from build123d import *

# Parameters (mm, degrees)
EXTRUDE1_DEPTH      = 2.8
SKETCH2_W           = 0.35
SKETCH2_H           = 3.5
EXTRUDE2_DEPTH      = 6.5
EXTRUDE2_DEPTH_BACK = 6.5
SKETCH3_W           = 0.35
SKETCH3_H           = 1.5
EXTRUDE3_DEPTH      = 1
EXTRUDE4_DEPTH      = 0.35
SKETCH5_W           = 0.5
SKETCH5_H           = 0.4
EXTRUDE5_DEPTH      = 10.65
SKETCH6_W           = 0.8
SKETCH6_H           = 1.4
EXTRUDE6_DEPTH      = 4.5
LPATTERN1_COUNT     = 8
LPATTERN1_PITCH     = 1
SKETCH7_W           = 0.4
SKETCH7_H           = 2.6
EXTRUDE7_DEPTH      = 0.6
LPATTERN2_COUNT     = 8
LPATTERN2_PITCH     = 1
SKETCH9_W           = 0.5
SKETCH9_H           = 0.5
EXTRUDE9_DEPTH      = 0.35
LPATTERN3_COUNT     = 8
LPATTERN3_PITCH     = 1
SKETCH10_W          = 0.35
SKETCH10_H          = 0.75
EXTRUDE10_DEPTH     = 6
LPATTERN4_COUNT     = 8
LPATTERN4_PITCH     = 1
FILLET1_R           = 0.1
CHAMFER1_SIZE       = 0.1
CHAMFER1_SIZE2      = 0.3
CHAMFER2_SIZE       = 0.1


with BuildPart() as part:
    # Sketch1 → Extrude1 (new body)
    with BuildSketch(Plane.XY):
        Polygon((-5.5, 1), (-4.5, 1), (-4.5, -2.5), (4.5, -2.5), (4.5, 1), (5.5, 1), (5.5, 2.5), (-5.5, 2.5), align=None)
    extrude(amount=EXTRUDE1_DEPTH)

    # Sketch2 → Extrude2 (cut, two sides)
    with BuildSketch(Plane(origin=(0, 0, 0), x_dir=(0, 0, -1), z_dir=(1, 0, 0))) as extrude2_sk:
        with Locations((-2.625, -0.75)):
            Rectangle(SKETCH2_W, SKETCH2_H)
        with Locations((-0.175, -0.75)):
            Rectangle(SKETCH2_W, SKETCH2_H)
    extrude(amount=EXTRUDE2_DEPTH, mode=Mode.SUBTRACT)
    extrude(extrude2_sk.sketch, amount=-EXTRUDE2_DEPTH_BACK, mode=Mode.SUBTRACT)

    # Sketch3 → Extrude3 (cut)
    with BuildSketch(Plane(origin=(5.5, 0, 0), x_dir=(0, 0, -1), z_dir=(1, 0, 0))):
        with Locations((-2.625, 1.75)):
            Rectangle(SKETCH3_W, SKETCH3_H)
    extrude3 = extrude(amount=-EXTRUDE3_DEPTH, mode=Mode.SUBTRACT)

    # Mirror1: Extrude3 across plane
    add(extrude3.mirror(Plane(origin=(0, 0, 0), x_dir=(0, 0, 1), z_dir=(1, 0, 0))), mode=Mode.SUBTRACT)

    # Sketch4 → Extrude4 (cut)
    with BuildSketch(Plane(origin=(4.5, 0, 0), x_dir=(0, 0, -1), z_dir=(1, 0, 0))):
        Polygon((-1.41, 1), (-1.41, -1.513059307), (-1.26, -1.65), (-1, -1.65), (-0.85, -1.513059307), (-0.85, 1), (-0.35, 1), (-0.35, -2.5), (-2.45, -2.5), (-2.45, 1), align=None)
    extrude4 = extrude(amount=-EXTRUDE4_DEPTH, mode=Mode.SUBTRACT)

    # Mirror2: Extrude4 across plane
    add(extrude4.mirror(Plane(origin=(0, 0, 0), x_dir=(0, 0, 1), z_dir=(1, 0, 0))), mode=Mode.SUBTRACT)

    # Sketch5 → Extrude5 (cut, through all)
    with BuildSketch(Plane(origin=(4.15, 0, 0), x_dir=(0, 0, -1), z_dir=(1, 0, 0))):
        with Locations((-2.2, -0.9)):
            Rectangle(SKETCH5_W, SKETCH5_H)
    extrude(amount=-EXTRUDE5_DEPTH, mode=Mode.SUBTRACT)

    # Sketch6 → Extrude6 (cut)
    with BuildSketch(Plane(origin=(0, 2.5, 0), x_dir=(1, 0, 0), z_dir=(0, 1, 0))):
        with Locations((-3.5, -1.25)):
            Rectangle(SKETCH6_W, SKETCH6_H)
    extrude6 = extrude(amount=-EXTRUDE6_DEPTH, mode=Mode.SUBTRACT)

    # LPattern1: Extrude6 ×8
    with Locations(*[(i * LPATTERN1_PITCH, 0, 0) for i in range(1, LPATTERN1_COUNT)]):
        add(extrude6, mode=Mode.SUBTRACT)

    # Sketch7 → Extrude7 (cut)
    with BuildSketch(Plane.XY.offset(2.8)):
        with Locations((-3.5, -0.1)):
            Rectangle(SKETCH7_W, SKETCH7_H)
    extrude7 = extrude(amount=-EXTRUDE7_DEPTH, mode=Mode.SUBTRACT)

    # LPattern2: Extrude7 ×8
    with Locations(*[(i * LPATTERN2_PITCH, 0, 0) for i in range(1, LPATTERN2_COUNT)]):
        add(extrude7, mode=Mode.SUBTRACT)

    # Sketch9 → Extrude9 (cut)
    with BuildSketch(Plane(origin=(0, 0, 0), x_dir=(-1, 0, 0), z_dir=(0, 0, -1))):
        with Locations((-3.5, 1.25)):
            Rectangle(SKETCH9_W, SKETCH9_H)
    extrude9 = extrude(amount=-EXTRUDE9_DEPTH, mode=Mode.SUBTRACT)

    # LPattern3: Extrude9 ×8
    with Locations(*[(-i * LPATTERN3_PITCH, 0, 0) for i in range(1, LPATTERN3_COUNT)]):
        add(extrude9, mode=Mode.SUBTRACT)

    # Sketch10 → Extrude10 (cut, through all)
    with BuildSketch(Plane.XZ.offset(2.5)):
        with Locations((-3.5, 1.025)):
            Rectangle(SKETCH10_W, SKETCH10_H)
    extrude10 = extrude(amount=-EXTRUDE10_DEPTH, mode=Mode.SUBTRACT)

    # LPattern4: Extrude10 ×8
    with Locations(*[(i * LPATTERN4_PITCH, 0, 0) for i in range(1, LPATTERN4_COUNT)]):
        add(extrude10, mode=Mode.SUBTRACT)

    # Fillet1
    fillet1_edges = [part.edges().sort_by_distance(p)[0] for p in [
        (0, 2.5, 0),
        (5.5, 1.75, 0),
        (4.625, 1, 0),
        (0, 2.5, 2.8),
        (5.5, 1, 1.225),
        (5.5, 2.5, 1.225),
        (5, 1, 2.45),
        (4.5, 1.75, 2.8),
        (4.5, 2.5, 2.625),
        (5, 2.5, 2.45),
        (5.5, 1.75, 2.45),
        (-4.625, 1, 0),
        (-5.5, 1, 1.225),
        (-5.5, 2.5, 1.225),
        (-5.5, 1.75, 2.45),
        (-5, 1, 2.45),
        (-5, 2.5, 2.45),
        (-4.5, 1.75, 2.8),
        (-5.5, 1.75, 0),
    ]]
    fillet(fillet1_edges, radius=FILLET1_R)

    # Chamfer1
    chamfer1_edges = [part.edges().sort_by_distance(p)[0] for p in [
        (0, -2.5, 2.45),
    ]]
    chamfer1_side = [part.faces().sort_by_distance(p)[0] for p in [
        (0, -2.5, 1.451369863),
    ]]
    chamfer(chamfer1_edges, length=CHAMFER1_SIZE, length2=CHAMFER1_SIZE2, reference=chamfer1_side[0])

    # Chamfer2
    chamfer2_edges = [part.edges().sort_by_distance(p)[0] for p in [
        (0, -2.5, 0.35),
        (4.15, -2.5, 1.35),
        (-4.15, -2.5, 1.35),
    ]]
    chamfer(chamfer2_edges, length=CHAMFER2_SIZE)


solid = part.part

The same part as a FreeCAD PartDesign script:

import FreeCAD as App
import Part
import Sketcher


def edges_at(feature, points):
    """Names of the edges that pass closest to the given points."""
    edges = feature.Shape.Edges
    near = lambda p: min(range(len(edges)), key=lambda i: edges[i].distToShape(Part.Vertex(*p))[0])
    return sorted({f"Edge{near(p) + 1}" for p in points})


def add_polygon(sketch, points):
    """Adds a closed chain of lines whose ends are joined by coincident constraints."""
    first, n = sketch.GeometryCount, len(points)
    for a, b in zip(points, points[1:] + points[:1]):
        sketch.addGeometry(Part.LineSegment(App.Vector(*a, 0), App.Vector(*b, 0)), False)
    for i in range(n):
        sketch.addConstraint(Sketcher.Constraint("Coincident", first + i, 2, first + (i + 1) % n, 1))

doc = App.newDocument("Part")
body = doc.addObject("PartDesign::Body", "Body")

# Sketch on XY plane
sketch1 = body.newObject("Sketcher::SketchObject", "Sketch")
sketch1.AttachmentSupport = (doc.getObject("XY_Plane"), [""])
sketch1.MapMode = "FlatFace"
add_polygon(sketch1, [(-5.5, 1), (-4.5, 1), (-4.5, -2.5), (4.5, -2.5), (4.5, 1), (5.5, 1), (5.5, 2.5), (-5.5, 2.5)])  # lines 0-7
sketch1.addConstraint([
    Sketcher.Constraint("Horizontal", 0),
    Sketcher.Constraint("Vertical", 1),
    Sketcher.Constraint("Horizontal", 2),
    Sketcher.Constraint("Vertical", 3),
    Sketcher.Constraint("Horizontal", 4),
    Sketcher.Constraint("Vertical", 5),
    Sketcher.Constraint("Horizontal", 6),
    Sketcher.Constraint("Vertical", 7),
    Sketcher.Constraint("Symmetric", 0, 2, 3, 2, -2),
    Sketcher.Constraint("Equal", 0, 4),
    Sketcher.Constraint("DistanceX", 0, 1, 0, 2, 1.0),
    Sketcher.Constraint("DistanceX", 2, 1, 2, 2, 9.0),
    Sketcher.Constraint("DistanceY", 1, 2, 1, 1, 3.5),
    Sketcher.Constraint("DistanceY", 5, 1, 5, 2, 1.5),
    Sketcher.Constraint("DistanceY", -1, 1, 0, 2, 1.0),
])
pad1 = body.newObject("PartDesign::Pad", "Pad")
pad1.Profile = sketch1
pad1.Length = 2.8

# Sketch on YZ plane
sketch2 = body.newObject("Sketcher::SketchObject", "Sketch001")
sketch2.AttachmentSupport = (doc.getObject("YZ_Plane"), [""])
sketch2.MapMode = "FlatFace"
add_polygon(sketch2, [(1, 2.8), (-2.5, 2.8), (-2.5, 2.45), (1, 2.45)])  # lines 0-3
add_polygon(sketch2, [(1, 0.35), (-2.5, 0.35), (-2.5, 0), (1, 0)])  # lines 4-7
sketch2.addConstraint([
    Sketcher.Constraint("Horizontal", 0),
    Sketcher.Constraint("Vertical", 1),
    Sketcher.Constraint("Horizontal", 2),
    Sketcher.Constraint("Vertical", 3),
    Sketcher.Constraint("Horizontal", 4),
    Sketcher.Constraint("Vertical", 5),
    Sketcher.Constraint("Horizontal", 6),
    Sketcher.Constraint("Vertical", 7),
    Sketcher.Constraint("PointOnObject", 5, 2, -1),
    Sketcher.Constraint("Vertical", 1, 2, 4, 2),
    Sketcher.Constraint("Vertical", 3, 2, 6, 2),
    Sketcher.Constraint("Equal", 3, 5),
    Sketcher.Constraint("DistanceX", 0, 2, 0, 1, 3.5),
    Sketcher.Constraint("DistanceX", -1, 1, 2, 2, 1.0),
    Sketcher.Constraint("DistanceY", 1, 2, 1, 1, 0.35),
    Sketcher.Constraint("DistanceY", -1, 1, 0, 2, 2.8),
])
pocket1 = body.newObject("PartDesign::Pocket", "Pocket")
pocket1.Profile = sketch2
pocket1.Type = "ThroughAll"
pocket1.Midplane = True

# Sketch on YZ plane
sketch3 = body.newObject("Sketcher::SketchObject", "Sketch002")
sketch3.AttachmentSupport = (doc.getObject("YZ_Plane"), [""])
sketch3.MapMode = "FlatFace"
sketch3.AttachmentOffset = App.Placement(App.Vector(0, 0, 5.5), App.Rotation())
add_polygon(sketch3, [(2.5, 2.8), (1, 2.8), (1, 2.45), (2.5, 2.45)])  # lines 0-3
sketch3.addConstraint([
    Sketcher.Constraint("Horizontal", 0),
    Sketcher.Constraint("Vertical", 1),
    Sketcher.Constraint("Horizontal", 2),
    Sketcher.Constraint("Vertical", 3),
    Sketcher.Constraint("DistanceX", 0, 2, 0, 1, 1.5),
    Sketcher.Constraint("DistanceX", -1, 1, 0, 2, 1.0),
    Sketcher.Constraint("DistanceY", 1, 2, 1, 1, 0.35),
    Sketcher.Constraint("DistanceY", -1, 1, 0, 2, 2.8),
])
pocket2 = body.newObject("PartDesign::Pocket", "Pocket001")
pocket2.Profile = sketch3
pocket2.Length = 1
doc.recompute()

mirrored = body.newObject("PartDesign::Mirrored", "Mirrored")
mirrored.Originals = [pocket2]
mirrored.MirrorPlane = (doc.getObject("YZ_Plane"), [""])
body.Tip = mirrored

# Sketch on YZ plane
sketch4 = body.newObject("Sketcher::SketchObject", "Sketch003")
sketch4.AttachmentSupport = (doc.getObject("YZ_Plane"), [""])
sketch4.MapMode = "FlatFace"
sketch4.AttachmentOffset = App.Placement(App.Vector(0, 0, 4.5), App.Rotation())
add_polygon(sketch4, [(-1.51, 1.41), (1, 1.41), (1, 2.45), (-2.5, 2.45), (-2.5, 0.35), (1, 0.35), (1, 0.85), (-1.51, 0.85), (-1.65, 1), (-1.65, 1.26)])  # lines 0-9
sketch4.addConstraint([
    Sketcher.Constraint("Horizontal", 0),
    Sketcher.Constraint("Vertical", 1),
    Sketcher.Constraint("Horizontal", 2),
    Sketcher.Constraint("Vertical", 3),
    Sketcher.Constraint("Horizontal", 4),
    Sketcher.Constraint("Vertical", 5),
    Sketcher.Constraint("Horizontal", 6),
    Sketcher.Constraint("Vertical", 8),
    Sketcher.Constraint("Vertical", 1, 2, 4, 2),
    Sketcher.Constraint("Vertical", 6, 2, 9, 2),
    Sketcher.Constraint("Equal", 7, 9),
    Sketcher.Constraint("DistanceX", 2, 2, 2, 1, 3.5),
    Sketcher.Constraint("DistanceY", 3, 2, 3, 1, 2.1),
    Sketcher.Constraint("DistanceY", 5, 1, 5, 2, 0.5),
    Sketcher.Constraint("DistanceX", -1, 1, 0, 2, 1.0),
    Sketcher.Constraint("DistanceY", -1, 1, 7, 2, 1.0),
    Sketcher.Constraint("DistanceY", 1, 1, 1, 2, 1.04),
    Sketcher.Constraint("DistanceY", 8, 1, 8, 2, 0.26),
    Sketcher.Constraint("DistanceX", 7, 2, -1, 1, 1.65),
    Sketcher.Constraint("DistanceX", 0, 1, 0, 2, 2.513059),
])
pocket3 = body.newObject("PartDesign::Pocket", "Pocket002")
pocket3.Profile = sketch4
pocket3.Length = 0.35
doc.recompute()

mirrored2 = body.newObject("PartDesign::Mirrored", "Mirrored001")
mirrored2.Originals = [pocket3]
mirrored2.MirrorPlane = (doc.getObject("YZ_Plane"), [""])
body.Tip = mirrored2

# Sketch on YZ plane
sketch5 = body.newObject("Sketcher::SketchObject", "Sketch004")
sketch5.AttachmentSupport = (doc.getObject("YZ_Plane"), [""])
sketch5.MapMode = "FlatFace"
sketch5.AttachmentOffset = App.Placement(App.Vector(0, 0, 4.15), App.Rotation())
add_polygon(sketch5, [(-0.7, 2.45), (-1.1, 2.45), (-1.1, 1.95), (-0.7, 1.95)])  # lines 0-3
sketch5.addConstraint([
    Sketcher.Constraint("Horizontal", 0),
    Sketcher.Constraint("Vertical", 1),
    Sketcher.Constraint("Horizontal", 2),
    Sketcher.Constraint("Vertical", 3),
    Sketcher.Constraint("DistanceX", 0, 2, 0, 1, 0.4),
    Sketcher.Constraint("DistanceY", 1, 2, 1, 1, 0.5),
    Sketcher.Constraint("DistanceX", 0, 2, -1, 1, 1.1),
    Sketcher.Constraint("DistanceY", -1, 1, 0, 2, 2.45),
])
pocket4 = body.newObject("PartDesign::Pocket", "Pocket003")
pocket4.Profile = sketch5
pocket4.Type = "ThroughAll"

# Sketch on XZ plane
sketch6 = body.newObject("Sketcher::SketchObject", "Sketch005")
sketch6.AttachmentSupport = (doc.getObject("XZ_Plane"), [""])
sketch6.MapMode = "FlatFace"
sketch6.AttachmentOffset = App.Placement(App.Vector(0, 0, -2.5), App.Rotation())
add_polygon(sketch6, [(-3.9, 0.6), (-3.9, 1.9), (-3.1, 1.9), (-3.1, 0.6)])  # lines 0-3
sketch6.addConstraint([
    Sketcher.Constraint("Vertical", 0),
    Sketcher.Constraint("Horizontal", 1),
    Sketcher.Constraint("Vertical", 2),
    Sketcher.Constraint("Horizontal", 3),
    Sketcher.Constraint("DistanceX", 1, 1, 1, 2, 0.8),
    Sketcher.Constraint("DistanceY", 0, 1, 0, 2, 1.4),
    Sketcher.Constraint("DistanceX", 0, 2, -1, 1, 3.9),
    Sketcher.Constraint("DistanceY", -1, 1, 0, 2, 1.95),
])
pocket5 = body.newObject("PartDesign::Pocket", "Pocket004")
pocket5.Profile = sketch6
pocket5.Length = 4.5
pocket5.Reversed = True
doc.recompute()

linearpattern = body.newObject("PartDesign::LinearPattern", "LinearPattern")
linearpattern.Originals = [pocket5]
linearpattern.Direction = (doc.getObject("X_Axis"), [""])
linearpattern.Mode = "offset"
linearpattern.Offset = 1
linearpattern.Occurrences = 8
body.Tip = linearpattern

# Sketch on XY plane
sketch7 = body.newObject("Sketcher::SketchObject", "Sketch006")
sketch7.AttachmentSupport = (doc.getObject("XY_Plane"), [""])
sketch7.MapMode = "FlatFace"
sketch7.AttachmentOffset = App.Placement(App.Vector(0, 0, 2.8), App.Rotation())
add_polygon(sketch7, [(-3.7, 1.2), (-3.7, -1.4), (-3.3, -1.4), (-3.3, 1.2)])  # lines 0-3
sketch7.addConstraint([
    Sketcher.Constraint("Vertical", 0),
    Sketcher.Constraint("Horizontal", 1),
    Sketcher.Constraint("Vertical", 2),
    Sketcher.Constraint("Horizontal", 3),
    Sketcher.Constraint("DistanceX", 1, 1, 1, 2, 0.4),
    Sketcher.Constraint("DistanceY", 0, 2, 0, 1, 2.6),
    Sketcher.Constraint("DistanceX", 0, 2, -1, 1, 3.7),
    Sketcher.Constraint("DistanceY", 0, 2, -1, 1, 1.4),
])
pocket6 = body.newObject("PartDesign::Pocket", "Pocket005")
pocket6.Profile = sketch7
pocket6.Length = 0.6
doc.recompute()

linearpattern2 = body.newObject("PartDesign::LinearPattern", "LinearPattern001")
linearpattern2.Originals = [pocket6]
linearpattern2.Direction = (doc.getObject("X_Axis"), [""])
linearpattern2.Mode = "offset"
linearpattern2.Offset = 1
linearpattern2.Occurrences = 8
body.Tip = linearpattern2

# Sketch on XY plane
sketch8 = body.newObject("Sketcher::SketchObject", "Sketch007")
sketch8.AttachmentSupport = (doc.getObject("XY_Plane"), [""])
sketch8.MapMode = "FlatFace"
add_polygon(sketch8, [(3.8, 1.5), (3.8, 1), (3.2, 1), (3.2, 1.5)])  # lines 0-3
sketch8.addConstraint([
    Sketcher.Constraint("Vertical", 0),
    Sketcher.Constraint("Horizontal", 1),
    Sketcher.Constraint("Vertical", 2),
    Sketcher.Constraint("Horizontal", 3),
    Sketcher.Constraint("Equal", 3, 0),
    Sketcher.Constraint("DistanceX", 1, 2, 1, 1, 0.5),
    Sketcher.Constraint("DistanceY", -1, 1, 0, 2, 1.0),
    Sketcher.Constraint("DistanceX", -1, 1, 0, 2, 3.75),
])
pocket7 = body.newObject("PartDesign::Pocket", "Pocket006")
pocket7.Profile = sketch8
pocket7.Length = 0.35
pocket7.Reversed = True
doc.recompute()

linearpattern3 = body.newObject("PartDesign::LinearPattern", "LinearPattern002")
linearpattern3.Originals = [pocket7]
linearpattern3.Direction = (doc.getObject("X_Axis"), [""])
linearpattern3.Mode = "offset"
linearpattern3.Offset = 1
linearpattern3.Occurrences = 8
linearpattern3.Reversed = True
body.Tip = linearpattern3

# Sketch on XZ plane
sketch9 = body.newObject("Sketcher::SketchObject", "Sketch008")
sketch9.AttachmentSupport = (doc.getObject("XZ_Plane"), [""])
sketch9.MapMode = "FlatFace"
sketch9.AttachmentOffset = App.Placement(App.Vector(0, 0, 2.5), App.Rotation())
add_polygon(sketch9, [(-3.67, 1.4), (-3.67, 0.65), (-3.33, 0.65), (-3.33, 1.4)])  # lines 0-3
sketch9.addConstraint([
    Sketcher.Constraint("Vertical", 0),
    Sketcher.Constraint("Horizontal", 1),
    Sketcher.Constraint("Vertical", 2),
    Sketcher.Constraint("Horizontal", 3),
    Sketcher.Constraint("DistanceX", 1, 1, 1, 2, 0.35),
    Sketcher.Constraint("DistanceY", 0, 2, 0, 1, 0.75),
    Sketcher.Constraint("DistanceY", -1, 1, 2, 2, 1.4),
    Sketcher.Constraint("DistanceX", 0, 2, -1, 1, 3.675),
])
pocket8 = body.newObject("PartDesign::Pocket", "Pocket007")
pocket8.Profile = sketch9
pocket8.Type = "ThroughAll"
doc.recompute()

linearpattern4 = body.newObject("PartDesign::LinearPattern", "LinearPattern003")
linearpattern4.Originals = [pocket8]
linearpattern4.Direction = (doc.getObject("X_Axis"), [""])
linearpattern4.Mode = "offset"
linearpattern4.Offset = 1
linearpattern4.Occurrences = 8
body.Tip = linearpattern4
doc.recompute()

fillet = body.newObject("PartDesign::Fillet", "Fillet")
fillet.Base = (linearpattern4, edges_at(linearpattern4, [
    (0, 2.5, 0),
    (5.5, 1.75, 0),
    (4.625, 1, 0),
    (0, 2.5, 2.8),
    (5.5, 1, 1.225),
    (5.5, 2.5, 1.225),
    (5, 1, 2.45),
    (4.5, 1.75, 2.8),
    (4.5, 2.5, 2.625),
    (5, 2.5, 2.45),
    (5.5, 1.75, 2.45),
    (-4.625, 1, 0),
    (-5.5, 1, 1.225),
    (-5.5, 2.5, 1.225),
    (-5.5, 1.75, 2.45),
    (-5, 1, 2.45),
    (-5, 2.5, 2.45),
    (-4.5, 1.75, 2.8),
    (-5.5, 1.75, 0),
]))
fillet.Radius = 0.1
doc.recompute()

chamfer = body.newObject("PartDesign::Chamfer", "Chamfer")
chamfer.Base = (fillet, edges_at(fillet, [(0, -2.5, 2.45)]))
chamfer.ChamferType = "Two distances"
chamfer.Size = 0.1
chamfer.Size2 = 0.3
doc.recompute()

chamfer2 = body.newObject("PartDesign::Chamfer", "Chamfer001")
chamfer2.Base = (chamfer, edges_at(chamfer, [(0, -2.5, 0.35), (4.15, -2.5, 1.35), (-4.15, -2.5, 1.35)]))
chamfer2.Size = 0.1

doc.recompute()
